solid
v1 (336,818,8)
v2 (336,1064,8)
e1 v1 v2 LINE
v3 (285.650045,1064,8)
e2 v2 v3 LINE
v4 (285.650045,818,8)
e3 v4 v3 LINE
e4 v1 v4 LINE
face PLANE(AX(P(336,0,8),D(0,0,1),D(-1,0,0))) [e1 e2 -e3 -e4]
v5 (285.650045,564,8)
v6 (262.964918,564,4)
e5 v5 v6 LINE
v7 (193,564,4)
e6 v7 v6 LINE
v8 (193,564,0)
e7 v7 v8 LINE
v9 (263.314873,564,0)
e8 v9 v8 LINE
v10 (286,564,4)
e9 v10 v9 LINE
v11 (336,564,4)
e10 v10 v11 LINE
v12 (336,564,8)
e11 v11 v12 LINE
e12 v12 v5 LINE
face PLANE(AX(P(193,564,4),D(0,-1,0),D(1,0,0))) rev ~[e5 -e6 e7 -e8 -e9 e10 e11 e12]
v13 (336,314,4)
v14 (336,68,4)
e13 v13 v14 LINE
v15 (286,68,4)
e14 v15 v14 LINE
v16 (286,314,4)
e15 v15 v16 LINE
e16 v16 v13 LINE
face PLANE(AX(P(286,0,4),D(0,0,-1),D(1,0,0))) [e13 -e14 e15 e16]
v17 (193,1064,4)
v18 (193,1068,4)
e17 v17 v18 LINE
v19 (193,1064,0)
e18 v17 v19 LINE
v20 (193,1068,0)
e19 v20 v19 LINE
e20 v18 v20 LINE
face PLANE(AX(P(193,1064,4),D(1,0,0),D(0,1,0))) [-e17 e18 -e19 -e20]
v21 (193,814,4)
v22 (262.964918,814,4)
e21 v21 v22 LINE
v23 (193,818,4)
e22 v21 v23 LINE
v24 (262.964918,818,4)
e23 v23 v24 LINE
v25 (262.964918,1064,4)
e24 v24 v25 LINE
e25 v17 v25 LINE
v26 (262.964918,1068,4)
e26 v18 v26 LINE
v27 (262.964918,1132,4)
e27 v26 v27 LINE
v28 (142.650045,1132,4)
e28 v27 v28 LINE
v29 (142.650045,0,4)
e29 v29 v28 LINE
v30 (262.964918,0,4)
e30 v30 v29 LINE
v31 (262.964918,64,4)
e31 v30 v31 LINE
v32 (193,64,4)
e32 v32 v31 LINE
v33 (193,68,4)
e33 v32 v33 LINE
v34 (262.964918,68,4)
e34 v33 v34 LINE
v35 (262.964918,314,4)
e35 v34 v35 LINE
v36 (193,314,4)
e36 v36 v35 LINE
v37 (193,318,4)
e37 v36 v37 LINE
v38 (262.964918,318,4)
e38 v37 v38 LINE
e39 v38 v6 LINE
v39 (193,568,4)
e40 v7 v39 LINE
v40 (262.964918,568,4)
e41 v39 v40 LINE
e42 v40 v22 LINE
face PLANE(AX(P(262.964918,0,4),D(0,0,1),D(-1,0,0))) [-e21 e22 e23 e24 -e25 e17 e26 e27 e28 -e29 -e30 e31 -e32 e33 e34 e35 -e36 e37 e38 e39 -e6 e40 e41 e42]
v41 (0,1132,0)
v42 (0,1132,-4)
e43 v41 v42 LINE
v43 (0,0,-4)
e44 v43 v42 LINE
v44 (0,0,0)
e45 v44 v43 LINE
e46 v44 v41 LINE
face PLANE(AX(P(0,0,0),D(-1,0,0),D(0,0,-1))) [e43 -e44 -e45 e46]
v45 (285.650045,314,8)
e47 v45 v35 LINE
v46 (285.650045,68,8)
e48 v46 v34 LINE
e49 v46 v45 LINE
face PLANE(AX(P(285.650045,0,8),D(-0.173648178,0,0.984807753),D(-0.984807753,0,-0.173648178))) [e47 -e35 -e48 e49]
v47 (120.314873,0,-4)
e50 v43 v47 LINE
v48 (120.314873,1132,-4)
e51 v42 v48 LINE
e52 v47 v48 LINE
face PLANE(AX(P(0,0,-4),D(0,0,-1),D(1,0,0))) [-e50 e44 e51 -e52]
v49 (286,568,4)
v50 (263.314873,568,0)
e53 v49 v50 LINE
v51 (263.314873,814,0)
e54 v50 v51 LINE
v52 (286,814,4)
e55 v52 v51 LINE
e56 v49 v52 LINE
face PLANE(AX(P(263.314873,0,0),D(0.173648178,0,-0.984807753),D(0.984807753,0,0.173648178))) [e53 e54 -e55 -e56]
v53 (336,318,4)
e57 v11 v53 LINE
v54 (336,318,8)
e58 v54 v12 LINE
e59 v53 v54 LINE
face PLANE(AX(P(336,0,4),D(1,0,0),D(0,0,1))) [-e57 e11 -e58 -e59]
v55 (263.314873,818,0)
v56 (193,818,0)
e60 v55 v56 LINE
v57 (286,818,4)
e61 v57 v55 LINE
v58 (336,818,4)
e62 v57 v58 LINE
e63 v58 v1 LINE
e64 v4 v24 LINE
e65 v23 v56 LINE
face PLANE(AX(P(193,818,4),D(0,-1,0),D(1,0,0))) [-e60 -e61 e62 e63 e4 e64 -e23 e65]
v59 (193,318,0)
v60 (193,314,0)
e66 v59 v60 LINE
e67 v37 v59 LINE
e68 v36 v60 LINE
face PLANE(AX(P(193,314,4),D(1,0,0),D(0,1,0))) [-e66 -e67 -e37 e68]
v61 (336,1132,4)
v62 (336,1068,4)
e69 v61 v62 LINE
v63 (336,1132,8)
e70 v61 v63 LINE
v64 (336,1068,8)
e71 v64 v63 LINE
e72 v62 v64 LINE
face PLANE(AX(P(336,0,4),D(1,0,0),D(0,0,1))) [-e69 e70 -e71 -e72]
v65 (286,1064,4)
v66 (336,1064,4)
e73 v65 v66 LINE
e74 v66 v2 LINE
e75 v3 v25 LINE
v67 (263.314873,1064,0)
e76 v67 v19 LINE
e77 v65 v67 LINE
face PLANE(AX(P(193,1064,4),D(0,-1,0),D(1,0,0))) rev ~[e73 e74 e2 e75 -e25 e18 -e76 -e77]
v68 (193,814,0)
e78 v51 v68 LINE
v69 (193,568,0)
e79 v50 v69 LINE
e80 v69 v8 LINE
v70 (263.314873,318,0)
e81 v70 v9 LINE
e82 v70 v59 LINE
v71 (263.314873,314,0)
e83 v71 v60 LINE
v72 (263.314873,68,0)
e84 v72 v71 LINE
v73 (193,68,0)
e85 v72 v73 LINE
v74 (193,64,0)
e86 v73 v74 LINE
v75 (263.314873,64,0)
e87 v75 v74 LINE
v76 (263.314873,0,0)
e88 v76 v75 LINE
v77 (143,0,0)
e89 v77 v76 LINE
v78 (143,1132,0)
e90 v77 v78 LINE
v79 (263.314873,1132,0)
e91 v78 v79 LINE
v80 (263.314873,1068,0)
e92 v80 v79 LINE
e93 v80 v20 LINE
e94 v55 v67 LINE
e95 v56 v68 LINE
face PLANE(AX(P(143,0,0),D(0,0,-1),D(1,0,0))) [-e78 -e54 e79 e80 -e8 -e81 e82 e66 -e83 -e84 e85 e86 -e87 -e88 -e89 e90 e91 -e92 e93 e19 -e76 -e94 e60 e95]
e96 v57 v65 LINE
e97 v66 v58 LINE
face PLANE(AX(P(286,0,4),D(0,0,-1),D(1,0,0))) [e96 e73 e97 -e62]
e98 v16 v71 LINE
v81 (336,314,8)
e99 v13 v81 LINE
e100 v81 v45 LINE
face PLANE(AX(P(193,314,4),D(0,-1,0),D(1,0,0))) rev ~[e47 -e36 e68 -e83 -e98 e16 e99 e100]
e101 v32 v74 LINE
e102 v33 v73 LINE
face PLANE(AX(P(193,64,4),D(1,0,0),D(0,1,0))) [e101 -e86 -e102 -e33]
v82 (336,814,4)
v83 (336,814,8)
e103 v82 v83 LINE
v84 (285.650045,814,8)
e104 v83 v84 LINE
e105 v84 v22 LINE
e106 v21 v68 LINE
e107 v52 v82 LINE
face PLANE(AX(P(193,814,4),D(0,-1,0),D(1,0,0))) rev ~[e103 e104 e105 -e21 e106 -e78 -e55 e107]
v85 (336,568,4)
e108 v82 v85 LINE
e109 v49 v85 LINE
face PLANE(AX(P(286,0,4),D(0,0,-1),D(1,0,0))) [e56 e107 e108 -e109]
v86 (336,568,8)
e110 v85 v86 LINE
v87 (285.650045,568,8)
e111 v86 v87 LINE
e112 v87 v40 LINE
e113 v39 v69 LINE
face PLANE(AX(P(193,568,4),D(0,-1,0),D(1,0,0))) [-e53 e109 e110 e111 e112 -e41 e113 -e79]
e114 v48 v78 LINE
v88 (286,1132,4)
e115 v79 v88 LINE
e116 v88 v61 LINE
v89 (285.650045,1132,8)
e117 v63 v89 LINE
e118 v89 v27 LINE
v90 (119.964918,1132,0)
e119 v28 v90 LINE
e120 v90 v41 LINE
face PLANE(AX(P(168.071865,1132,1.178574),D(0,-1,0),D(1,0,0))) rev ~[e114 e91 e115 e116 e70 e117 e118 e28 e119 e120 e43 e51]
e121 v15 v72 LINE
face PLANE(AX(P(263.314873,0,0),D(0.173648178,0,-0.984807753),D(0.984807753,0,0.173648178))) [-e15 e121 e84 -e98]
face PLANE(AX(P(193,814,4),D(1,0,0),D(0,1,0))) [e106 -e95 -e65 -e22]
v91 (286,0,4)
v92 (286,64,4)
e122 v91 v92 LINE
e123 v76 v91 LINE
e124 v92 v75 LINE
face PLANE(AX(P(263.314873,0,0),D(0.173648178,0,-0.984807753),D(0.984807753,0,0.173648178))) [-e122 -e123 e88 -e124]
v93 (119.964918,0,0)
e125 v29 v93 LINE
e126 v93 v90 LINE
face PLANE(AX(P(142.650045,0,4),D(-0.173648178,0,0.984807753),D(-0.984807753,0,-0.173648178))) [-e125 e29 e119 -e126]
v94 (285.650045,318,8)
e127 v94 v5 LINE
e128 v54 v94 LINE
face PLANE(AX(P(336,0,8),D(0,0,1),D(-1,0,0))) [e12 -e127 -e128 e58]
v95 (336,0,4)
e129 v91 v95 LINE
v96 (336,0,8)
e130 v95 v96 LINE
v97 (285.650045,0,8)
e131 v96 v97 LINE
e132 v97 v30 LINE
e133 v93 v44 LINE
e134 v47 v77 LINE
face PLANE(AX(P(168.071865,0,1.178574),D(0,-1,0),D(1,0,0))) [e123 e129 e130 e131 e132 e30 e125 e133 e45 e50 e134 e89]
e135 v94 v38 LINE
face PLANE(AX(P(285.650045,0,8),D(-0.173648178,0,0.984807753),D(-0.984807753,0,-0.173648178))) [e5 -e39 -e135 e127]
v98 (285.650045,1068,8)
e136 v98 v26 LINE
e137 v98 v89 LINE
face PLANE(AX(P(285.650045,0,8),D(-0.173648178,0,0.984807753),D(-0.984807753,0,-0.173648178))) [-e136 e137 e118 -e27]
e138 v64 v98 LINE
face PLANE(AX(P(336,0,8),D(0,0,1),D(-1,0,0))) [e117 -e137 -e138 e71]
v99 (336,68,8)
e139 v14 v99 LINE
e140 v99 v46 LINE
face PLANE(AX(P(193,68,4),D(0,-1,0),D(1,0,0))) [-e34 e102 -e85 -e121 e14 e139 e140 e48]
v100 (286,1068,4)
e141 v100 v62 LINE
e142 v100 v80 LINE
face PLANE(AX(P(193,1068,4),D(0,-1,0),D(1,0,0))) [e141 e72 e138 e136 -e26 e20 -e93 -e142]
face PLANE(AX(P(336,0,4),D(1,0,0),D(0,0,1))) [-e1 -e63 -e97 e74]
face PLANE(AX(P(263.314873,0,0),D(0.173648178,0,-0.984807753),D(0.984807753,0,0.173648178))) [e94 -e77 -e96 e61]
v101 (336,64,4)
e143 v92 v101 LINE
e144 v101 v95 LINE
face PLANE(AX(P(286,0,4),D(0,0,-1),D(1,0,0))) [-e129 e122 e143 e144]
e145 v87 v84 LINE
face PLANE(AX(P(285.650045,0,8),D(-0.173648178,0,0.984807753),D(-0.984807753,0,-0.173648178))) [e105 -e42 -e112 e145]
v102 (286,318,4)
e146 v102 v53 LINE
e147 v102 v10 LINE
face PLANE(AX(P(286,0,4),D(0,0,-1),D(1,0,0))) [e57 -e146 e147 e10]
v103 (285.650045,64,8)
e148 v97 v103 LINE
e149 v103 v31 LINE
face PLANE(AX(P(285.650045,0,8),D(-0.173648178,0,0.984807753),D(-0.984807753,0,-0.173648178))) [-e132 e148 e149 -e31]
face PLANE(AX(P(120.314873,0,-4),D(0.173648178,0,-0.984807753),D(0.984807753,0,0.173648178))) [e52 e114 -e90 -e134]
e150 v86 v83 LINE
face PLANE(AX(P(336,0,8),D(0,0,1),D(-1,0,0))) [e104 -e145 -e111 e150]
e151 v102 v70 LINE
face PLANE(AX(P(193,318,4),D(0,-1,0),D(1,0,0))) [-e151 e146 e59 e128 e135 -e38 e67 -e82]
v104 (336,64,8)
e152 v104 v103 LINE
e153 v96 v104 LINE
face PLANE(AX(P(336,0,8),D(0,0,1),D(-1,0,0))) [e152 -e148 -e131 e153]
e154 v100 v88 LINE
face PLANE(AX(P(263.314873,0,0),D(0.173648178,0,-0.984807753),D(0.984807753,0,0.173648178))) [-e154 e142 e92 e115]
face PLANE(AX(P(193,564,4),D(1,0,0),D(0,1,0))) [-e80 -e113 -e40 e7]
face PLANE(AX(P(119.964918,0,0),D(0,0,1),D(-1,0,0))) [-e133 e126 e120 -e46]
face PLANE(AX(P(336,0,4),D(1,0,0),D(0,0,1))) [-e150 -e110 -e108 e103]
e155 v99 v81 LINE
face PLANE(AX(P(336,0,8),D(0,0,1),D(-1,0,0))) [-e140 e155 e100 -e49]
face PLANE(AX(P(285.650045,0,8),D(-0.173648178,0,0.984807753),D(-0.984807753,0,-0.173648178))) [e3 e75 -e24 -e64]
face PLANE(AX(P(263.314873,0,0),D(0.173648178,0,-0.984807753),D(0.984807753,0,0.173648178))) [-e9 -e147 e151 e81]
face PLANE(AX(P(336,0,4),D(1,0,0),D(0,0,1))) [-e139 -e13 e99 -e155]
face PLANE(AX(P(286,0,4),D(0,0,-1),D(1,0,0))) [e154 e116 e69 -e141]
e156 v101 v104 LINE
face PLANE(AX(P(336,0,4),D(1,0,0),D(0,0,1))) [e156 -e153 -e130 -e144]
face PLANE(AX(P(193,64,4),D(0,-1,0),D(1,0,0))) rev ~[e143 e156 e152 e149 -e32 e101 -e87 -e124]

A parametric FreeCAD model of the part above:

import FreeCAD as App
import Part
import Sketcher

V = App.Vector
Q = App.Units.Quantity


def add_polygon(sketch, points):
    """Adds a closed chain of lines whose ends are joined by coincident constraints."""
    first, n = sketch.GeometryCount, len(points)
    for a, b in zip(points, points[1:] + points[:1]):
        sketch.addGeometry(Part.LineSegment(App.Vector(*a, 0), App.Vector(*b, 0)), False)
    for i in range(n):
        sketch.addConstraint(Sketcher.Constraint("Coincident", first + i, 2, first + (i + 1) % n, 1))

doc = App.newDocument("Part")
body = doc.addObject("PartDesign::Body", "Body")

sketch1 = body.newObject("Sketcher::SketchObject", "Sketch")
sketch1.AttachmentSupport = (doc.getObject("XZ_Plane"), [""])
sketch1.MapMode = "FlatFace"
add_polygon(sketch1, [(119.964918, 0), (0, 0), (0, -4), (120.314873, -4), (143, 0), (263.314873, 0), (286, 4), (336, 4), (336, 8), (285.650045, 8), (262.964918, 4), (142.650045, 4)])
sketch1.addConstraint(Sketcher.Constraint("Horizontal", 0))
sketch1.addConstraint(Sketcher.Constraint("Vertical", 1))
sketch1.addConstraint(Sketcher.Constraint("Horizontal", 2))
sketch1.addConstraint(Sketcher.Constraint("Horizontal", 4))
sketch1.addConstraint(Sketcher.Constraint("Horizontal", 6))
sketch1.addConstraint(Sketcher.Constraint("Vertical", 7))
sketch1.addConstraint(Sketcher.Constraint("Horizontal", 8))
sketch1.addConstraint(Sketcher.Constraint("Horizontal", 10))
sketch1.addConstraint(Sketcher.Constraint("Coincident", 0, 2, -1, 1))
sketch1.addConstraint(Sketcher.Constraint("PointOnObject", 3, 2, -1))
sketch1.addConstraint(Sketcher.Constraint("Parallel", 3, 5))
sketch1.addConstraint(Sketcher.Constraint("Parallel", 5, 9))
sketch1.addConstraint(Sketcher.Constraint("Parallel", 9, 11))
sketch1.addConstraint(Sketcher.Constraint("Horizontal", 6, 2, 9, 2))
sketch1.addConstraint(Sketcher.Constraint("Equal", 2, 4))
sketch1.addConstraint(Sketcher.Constraint("Equal", 4, 10))
sketch1.addConstraint(Sketcher.Constraint("Equal", 1, 7))
sketch1.addConstraint(Sketcher.Constraint("Equal", 3, 5))
sketch1.addConstraint(Sketcher.Constraint("DistanceX", 6, 1, 6, 2, 50.0))
sketch1.addConstraint(Sketcher.Constraint("DistanceY", 1, 2, 1, 1, 4.0))
sketch1.addConstraint(Sketcher.Constraint("Angle", 3, Q("10 deg")))
sketch1.addConstraint(Sketcher.Constraint("DistanceX", -1, 1, 3, 2, 143.0))
sketch1.addConstraint(Sketcher.Constraint("DistanceX", 0, 2, 0, 1, 119.964918))
pad1 = body.newObject("PartDesign::Pad", "Pad")
pad1.Profile = sketch1
pad1.Length = 1132
pad1.Reversed = True

sketch2 = body.newObject("Sketcher::SketchObject", "Sketch001")
sketch2.AttachmentSupport = (doc.getObject("XY_Plane"), [""])
sketch2.MapMode = "FlatFace"
sketch2.AttachmentOffset = App.Placement(V(0, 0, 4), App.Rotation())
add_polygon(sketch2, [(193, 68), (193, 64), (336, 64), (336, 68)])
add_polygon(sketch2, [(193, 318), (193, 314), (336, 314), (336, 318)])
add_polygon(sketch2, [(193, 568), (193, 564), (336, 564), (336, 568)])
add_polygon(sketch2, [(193, 818), (193, 814), (336, 814), (336, 818)])
add_polygon(sketch2, [(193, 1068), (193, 1064), (336, 1064), (336, 1068)])
sketch2.addConstraint(Sketcher.Constraint("Vertical", 0))
sketch2.addConstraint(Sketcher.Constraint("Horizontal", 1))
sketch2.addConstraint(Sketcher.Constraint("Vertical", 2))
sketch2.addConstraint(Sketcher.Constraint("Horizontal", 3))
sketch2.addConstraint(Sketcher.Constraint("Vertical", 4))
sketch2.addConstraint(Sketcher.Constraint("Horizontal", 5))
sketch2.addConstraint(Sketcher.Constraint("Vertical", 6))
sketch2.addConstraint(Sketcher.Constraint("Horizontal", 7))
sketch2.addConstraint(Sketcher.Constraint("Vertical", 8))
sketch2.addConstraint(Sketcher.Constraint("Horizontal", 9))
sketch2.addConstraint(Sketcher.Constraint("Vertical", 10))
sketch2.addConstraint(Sketcher.Constraint("Horizontal", 11))
sketch2.addConstraint(Sketcher.Constraint("Vertical", 12))
sketch2.addConstraint(Sketcher.Constraint("Horizontal", 13))
sketch2.addConstraint(Sketcher.Constraint("Vertical", 14))
sketch2.addConstraint(Sketcher.Constraint("Horizontal", 15))
sketch2.addConstraint(Sketcher.Constraint("Vertical", 16))
sketch2.addConstraint(Sketcher.Constraint("Horizontal", 17))
sketch2.addConstraint(Sketcher.Constraint("Vertical", 18))
sketch2.addConstraint(Sketcher.Constraint("Horizontal", 19))
sketch2.addConstraint(Sketcher.Constraint("Vertical", 3, 2, 4, 2))
sketch2.addConstraint(Sketcher.Constraint("Vertical", 2, 2, 5, 2))
sketch2.addConstraint(Sketcher.Constraint("Vertical", 7, 2, 8, 2))
sketch2.addConstraint(Sketcher.Constraint("Vertical", 6, 2, 9, 2))
sketch2.addConstraint(Sketcher.Constraint("Vertical", 11, 2, 12, 2))
sketch2.addConstraint(Sketcher.Constraint("Vertical", 10, 2, 13, 2))
sketch2.addConstraint(Sketcher.Constraint("Vertical", 15, 2, 16, 2))
sketch2.addConstraint(Sketcher.Constraint("Vertical", 14, 2, 17, 2))
sketch2.addConstraint(Sketcher.Constraint("Equal", 2, 4))
sketch2.addConstraint(Sketcher.Constraint("Equal", 6, 8))
sketch2.addConstraint(Sketcher.Constraint("Equal", 10, 12))
sketch2.addConstraint(Sketcher.Constraint("Equal", 14, 16))
sketch2.addConstraint(Sketcher.Constraint("DistanceX", 1, 1, 1, 2, 143.0))
sketch2.addConstraint(Sketcher.Constraint("DistanceY", 0, 2, 0, 1, 4.0))
sketch2.addConstraint(Sketcher.Constraint("DistanceX", -1, 1, 0, 2, 193.0))
sketch2.addConstraint(Sketcher.Constraint("DistanceY", -1, 1, 0, 2, 64.0))
sketch2.addConstraint(Sketcher.Constraint("DistanceY", -1, 1, 4, 2, 314.0))
sketch2.addConstraint(Sketcher.Constraint("DistanceY", -1, 1, 8, 2, 564.0))
sketch2.addConstraint(Sketcher.Constraint("DistanceY", -1, 1, 12, 2, 814.0))
sketch2.addConstraint(Sketcher.Constraint("DistanceY", -1, 1, 16, 2, 1064.0))
pocket1 = body.newObject("PartDesign::Pocket", "Pocket")
pocket1.Profile = sketch2
pocket1.Type = "ThroughAll"
pocket1.Midplane = True

doc.recompute()
